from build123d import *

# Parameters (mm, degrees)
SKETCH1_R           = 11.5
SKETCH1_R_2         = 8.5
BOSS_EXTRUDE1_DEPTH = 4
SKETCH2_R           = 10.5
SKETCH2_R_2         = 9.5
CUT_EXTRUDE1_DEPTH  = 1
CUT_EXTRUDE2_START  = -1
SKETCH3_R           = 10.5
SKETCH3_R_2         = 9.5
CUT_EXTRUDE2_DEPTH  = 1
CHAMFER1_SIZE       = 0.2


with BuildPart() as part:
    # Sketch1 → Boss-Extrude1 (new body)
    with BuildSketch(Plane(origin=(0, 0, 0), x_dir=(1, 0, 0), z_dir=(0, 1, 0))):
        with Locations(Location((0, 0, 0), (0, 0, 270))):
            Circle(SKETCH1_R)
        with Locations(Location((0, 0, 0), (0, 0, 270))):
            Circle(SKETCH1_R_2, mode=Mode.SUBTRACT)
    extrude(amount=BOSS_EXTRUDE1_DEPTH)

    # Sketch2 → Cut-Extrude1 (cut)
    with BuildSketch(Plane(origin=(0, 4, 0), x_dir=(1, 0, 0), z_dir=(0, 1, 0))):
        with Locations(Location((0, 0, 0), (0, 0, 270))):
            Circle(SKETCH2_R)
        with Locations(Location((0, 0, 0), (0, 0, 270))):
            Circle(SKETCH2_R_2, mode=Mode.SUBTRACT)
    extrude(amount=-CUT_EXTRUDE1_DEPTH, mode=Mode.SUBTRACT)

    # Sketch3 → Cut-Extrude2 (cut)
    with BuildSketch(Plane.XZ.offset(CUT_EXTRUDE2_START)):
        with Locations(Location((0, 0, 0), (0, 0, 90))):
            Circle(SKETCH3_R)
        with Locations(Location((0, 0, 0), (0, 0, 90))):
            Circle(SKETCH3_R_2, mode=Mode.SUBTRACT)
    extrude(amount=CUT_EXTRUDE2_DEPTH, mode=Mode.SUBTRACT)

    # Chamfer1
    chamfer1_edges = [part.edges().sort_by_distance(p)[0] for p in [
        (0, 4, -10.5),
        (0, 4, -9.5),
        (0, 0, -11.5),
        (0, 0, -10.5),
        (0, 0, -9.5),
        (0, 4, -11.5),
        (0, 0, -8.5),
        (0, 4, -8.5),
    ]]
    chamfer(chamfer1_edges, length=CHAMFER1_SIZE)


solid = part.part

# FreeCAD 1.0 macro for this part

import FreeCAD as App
import Part
import Sketcher

V = App.Vector
Q = App.Units.Quantity


def edges_at(feature, points):
    """Names of the edges that pass closest to the given points."""
    edges = feature.Shape.Edges
    near = lambda p: min(range(len(edges)), key=lambda i: edges[i].distToShape(Part.Vertex(*p))[0])
    return sorted({f"Edge{near(p) + 1}" for p in points})

doc = App.newDocument("Part")
body = doc.addObject("PartDesign::Body", "Body")

# Sketch on XZ plane
sketch1 = doc.addObject("Sketcher::SketchObject", "Sketch")
body.addObject(sketch1)
sketch1.AttachmentSupport = (doc.XZ_Plane, [""])
sketch1.MapMode = "FlatFace"
sketch1.addGeometry([
    Part.Circle(V(0, 0, 0), V(0, 0, 1), 12),
    Part.Circle(V(0, 0, 0), V(0, 0, 1), 8),
], False)
sketch1.addConstraint([
    Sketcher.Constraint("Coincident", 0, 3, -1, 1),
    Sketcher.Constraint("Coincident", 1, 3, -1, 1),
    Sketcher.Constraint("Diameter", 0, Q("23 mm")),
    Sketcher.Constraint("Diameter", 1, Q("17 mm")),
])
pad1 = doc.addObject("PartDesign::Pad", "Pad")
body.addObject(pad1)
pad1.Profile = sketch1
pad1.Length = 4
pad1.Reversed = True

# Sketch on XZ plane
sketch2 = doc.addObject("Sketcher::SketchObject", "Sketch001")
body.addObject(sketch2)
sketch2.AttachmentSupport = (doc.XZ_Plane, [""])
sketch2.MapMode = "FlatFace"
sketch2.AttachmentOffset = App.Placement(V(0, 0, -4), App.Rotation())
sketch2.addGeometry([
    Part.Circle(V(0, 0, 0), V(0, 0, 1), 10),
    Part.Circle(V(0, 0, 0), V(0, 0, 1), 10),
], False)
sketch2.addConstraint([
    Sketcher.Constraint("Coincident", 0, 3, -1, 1),
    Sketcher.Constraint("Coincident", 1, 3, -1, 1),
    Sketcher.Constraint("Diameter", 0, Q("21 mm")),
    Sketcher.Constraint("Diameter", 1, Q("19 mm")),
])
pocket1 = doc.addObject("PartDesign::Pocket", "Pocket")
body.addObject(pocket1)
pocket1.Profile = sketch2
pocket1.Length = 1
pocket1.Reversed = True

# Sketch on XZ plane
sketch3 = doc.addObject("Sketcher::SketchObject", "Sketch002")
body.addObject(sketch3)
sketch3.AttachmentSupport = (doc.XZ_Plane, [""])
sketch3.MapMode = "FlatFace"
sketch3.AttachmentOffset = App.Placement(V(0, 0, -1), App.Rotation())
sketch3.addGeometry([
    Part.Circle(V(0, 0, 0), V(0, 0, 1), 10),
    Part.Circle(V(0, 0, 0), V(0, 0, 1), 10),
], False)
sketch3.addConstraint([
    Sketcher.Constraint("Coincident", 0, 3, -1, 1),
    Sketcher.Constraint("Coincident", 1, 3, -1, 1),
    Sketcher.Constraint("Diameter", 0, Q("21 mm")),
    Sketcher.Constraint("Diameter", 1, Q("19 mm")),
])
pocket2 = doc.addObject("PartDesign::Pocket", "Pocket001")
body.addObject(pocket2)
pocket2.Profile = sketch3
pocket2.Length = 1
pocket2.Reversed = True
doc.recompute()

chamfer = doc.addObject("PartDesign::Chamfer", "Chamfer")
body.addObject(chamfer)
chamfer.Base = (pocket2, edges_at(pocket2, [
    (0, 4, -10.5),
    (0, 4, -9.5),
    (0, 0, -11.5),
    (0, 0, -10.5),
    (0, 0, -9.5),
    (0, 4, -11.5),
    (0, 0, -8.5),
    (0, 4, -8.5),
]))
chamfer.Size = 0.2

doc.recompute()
